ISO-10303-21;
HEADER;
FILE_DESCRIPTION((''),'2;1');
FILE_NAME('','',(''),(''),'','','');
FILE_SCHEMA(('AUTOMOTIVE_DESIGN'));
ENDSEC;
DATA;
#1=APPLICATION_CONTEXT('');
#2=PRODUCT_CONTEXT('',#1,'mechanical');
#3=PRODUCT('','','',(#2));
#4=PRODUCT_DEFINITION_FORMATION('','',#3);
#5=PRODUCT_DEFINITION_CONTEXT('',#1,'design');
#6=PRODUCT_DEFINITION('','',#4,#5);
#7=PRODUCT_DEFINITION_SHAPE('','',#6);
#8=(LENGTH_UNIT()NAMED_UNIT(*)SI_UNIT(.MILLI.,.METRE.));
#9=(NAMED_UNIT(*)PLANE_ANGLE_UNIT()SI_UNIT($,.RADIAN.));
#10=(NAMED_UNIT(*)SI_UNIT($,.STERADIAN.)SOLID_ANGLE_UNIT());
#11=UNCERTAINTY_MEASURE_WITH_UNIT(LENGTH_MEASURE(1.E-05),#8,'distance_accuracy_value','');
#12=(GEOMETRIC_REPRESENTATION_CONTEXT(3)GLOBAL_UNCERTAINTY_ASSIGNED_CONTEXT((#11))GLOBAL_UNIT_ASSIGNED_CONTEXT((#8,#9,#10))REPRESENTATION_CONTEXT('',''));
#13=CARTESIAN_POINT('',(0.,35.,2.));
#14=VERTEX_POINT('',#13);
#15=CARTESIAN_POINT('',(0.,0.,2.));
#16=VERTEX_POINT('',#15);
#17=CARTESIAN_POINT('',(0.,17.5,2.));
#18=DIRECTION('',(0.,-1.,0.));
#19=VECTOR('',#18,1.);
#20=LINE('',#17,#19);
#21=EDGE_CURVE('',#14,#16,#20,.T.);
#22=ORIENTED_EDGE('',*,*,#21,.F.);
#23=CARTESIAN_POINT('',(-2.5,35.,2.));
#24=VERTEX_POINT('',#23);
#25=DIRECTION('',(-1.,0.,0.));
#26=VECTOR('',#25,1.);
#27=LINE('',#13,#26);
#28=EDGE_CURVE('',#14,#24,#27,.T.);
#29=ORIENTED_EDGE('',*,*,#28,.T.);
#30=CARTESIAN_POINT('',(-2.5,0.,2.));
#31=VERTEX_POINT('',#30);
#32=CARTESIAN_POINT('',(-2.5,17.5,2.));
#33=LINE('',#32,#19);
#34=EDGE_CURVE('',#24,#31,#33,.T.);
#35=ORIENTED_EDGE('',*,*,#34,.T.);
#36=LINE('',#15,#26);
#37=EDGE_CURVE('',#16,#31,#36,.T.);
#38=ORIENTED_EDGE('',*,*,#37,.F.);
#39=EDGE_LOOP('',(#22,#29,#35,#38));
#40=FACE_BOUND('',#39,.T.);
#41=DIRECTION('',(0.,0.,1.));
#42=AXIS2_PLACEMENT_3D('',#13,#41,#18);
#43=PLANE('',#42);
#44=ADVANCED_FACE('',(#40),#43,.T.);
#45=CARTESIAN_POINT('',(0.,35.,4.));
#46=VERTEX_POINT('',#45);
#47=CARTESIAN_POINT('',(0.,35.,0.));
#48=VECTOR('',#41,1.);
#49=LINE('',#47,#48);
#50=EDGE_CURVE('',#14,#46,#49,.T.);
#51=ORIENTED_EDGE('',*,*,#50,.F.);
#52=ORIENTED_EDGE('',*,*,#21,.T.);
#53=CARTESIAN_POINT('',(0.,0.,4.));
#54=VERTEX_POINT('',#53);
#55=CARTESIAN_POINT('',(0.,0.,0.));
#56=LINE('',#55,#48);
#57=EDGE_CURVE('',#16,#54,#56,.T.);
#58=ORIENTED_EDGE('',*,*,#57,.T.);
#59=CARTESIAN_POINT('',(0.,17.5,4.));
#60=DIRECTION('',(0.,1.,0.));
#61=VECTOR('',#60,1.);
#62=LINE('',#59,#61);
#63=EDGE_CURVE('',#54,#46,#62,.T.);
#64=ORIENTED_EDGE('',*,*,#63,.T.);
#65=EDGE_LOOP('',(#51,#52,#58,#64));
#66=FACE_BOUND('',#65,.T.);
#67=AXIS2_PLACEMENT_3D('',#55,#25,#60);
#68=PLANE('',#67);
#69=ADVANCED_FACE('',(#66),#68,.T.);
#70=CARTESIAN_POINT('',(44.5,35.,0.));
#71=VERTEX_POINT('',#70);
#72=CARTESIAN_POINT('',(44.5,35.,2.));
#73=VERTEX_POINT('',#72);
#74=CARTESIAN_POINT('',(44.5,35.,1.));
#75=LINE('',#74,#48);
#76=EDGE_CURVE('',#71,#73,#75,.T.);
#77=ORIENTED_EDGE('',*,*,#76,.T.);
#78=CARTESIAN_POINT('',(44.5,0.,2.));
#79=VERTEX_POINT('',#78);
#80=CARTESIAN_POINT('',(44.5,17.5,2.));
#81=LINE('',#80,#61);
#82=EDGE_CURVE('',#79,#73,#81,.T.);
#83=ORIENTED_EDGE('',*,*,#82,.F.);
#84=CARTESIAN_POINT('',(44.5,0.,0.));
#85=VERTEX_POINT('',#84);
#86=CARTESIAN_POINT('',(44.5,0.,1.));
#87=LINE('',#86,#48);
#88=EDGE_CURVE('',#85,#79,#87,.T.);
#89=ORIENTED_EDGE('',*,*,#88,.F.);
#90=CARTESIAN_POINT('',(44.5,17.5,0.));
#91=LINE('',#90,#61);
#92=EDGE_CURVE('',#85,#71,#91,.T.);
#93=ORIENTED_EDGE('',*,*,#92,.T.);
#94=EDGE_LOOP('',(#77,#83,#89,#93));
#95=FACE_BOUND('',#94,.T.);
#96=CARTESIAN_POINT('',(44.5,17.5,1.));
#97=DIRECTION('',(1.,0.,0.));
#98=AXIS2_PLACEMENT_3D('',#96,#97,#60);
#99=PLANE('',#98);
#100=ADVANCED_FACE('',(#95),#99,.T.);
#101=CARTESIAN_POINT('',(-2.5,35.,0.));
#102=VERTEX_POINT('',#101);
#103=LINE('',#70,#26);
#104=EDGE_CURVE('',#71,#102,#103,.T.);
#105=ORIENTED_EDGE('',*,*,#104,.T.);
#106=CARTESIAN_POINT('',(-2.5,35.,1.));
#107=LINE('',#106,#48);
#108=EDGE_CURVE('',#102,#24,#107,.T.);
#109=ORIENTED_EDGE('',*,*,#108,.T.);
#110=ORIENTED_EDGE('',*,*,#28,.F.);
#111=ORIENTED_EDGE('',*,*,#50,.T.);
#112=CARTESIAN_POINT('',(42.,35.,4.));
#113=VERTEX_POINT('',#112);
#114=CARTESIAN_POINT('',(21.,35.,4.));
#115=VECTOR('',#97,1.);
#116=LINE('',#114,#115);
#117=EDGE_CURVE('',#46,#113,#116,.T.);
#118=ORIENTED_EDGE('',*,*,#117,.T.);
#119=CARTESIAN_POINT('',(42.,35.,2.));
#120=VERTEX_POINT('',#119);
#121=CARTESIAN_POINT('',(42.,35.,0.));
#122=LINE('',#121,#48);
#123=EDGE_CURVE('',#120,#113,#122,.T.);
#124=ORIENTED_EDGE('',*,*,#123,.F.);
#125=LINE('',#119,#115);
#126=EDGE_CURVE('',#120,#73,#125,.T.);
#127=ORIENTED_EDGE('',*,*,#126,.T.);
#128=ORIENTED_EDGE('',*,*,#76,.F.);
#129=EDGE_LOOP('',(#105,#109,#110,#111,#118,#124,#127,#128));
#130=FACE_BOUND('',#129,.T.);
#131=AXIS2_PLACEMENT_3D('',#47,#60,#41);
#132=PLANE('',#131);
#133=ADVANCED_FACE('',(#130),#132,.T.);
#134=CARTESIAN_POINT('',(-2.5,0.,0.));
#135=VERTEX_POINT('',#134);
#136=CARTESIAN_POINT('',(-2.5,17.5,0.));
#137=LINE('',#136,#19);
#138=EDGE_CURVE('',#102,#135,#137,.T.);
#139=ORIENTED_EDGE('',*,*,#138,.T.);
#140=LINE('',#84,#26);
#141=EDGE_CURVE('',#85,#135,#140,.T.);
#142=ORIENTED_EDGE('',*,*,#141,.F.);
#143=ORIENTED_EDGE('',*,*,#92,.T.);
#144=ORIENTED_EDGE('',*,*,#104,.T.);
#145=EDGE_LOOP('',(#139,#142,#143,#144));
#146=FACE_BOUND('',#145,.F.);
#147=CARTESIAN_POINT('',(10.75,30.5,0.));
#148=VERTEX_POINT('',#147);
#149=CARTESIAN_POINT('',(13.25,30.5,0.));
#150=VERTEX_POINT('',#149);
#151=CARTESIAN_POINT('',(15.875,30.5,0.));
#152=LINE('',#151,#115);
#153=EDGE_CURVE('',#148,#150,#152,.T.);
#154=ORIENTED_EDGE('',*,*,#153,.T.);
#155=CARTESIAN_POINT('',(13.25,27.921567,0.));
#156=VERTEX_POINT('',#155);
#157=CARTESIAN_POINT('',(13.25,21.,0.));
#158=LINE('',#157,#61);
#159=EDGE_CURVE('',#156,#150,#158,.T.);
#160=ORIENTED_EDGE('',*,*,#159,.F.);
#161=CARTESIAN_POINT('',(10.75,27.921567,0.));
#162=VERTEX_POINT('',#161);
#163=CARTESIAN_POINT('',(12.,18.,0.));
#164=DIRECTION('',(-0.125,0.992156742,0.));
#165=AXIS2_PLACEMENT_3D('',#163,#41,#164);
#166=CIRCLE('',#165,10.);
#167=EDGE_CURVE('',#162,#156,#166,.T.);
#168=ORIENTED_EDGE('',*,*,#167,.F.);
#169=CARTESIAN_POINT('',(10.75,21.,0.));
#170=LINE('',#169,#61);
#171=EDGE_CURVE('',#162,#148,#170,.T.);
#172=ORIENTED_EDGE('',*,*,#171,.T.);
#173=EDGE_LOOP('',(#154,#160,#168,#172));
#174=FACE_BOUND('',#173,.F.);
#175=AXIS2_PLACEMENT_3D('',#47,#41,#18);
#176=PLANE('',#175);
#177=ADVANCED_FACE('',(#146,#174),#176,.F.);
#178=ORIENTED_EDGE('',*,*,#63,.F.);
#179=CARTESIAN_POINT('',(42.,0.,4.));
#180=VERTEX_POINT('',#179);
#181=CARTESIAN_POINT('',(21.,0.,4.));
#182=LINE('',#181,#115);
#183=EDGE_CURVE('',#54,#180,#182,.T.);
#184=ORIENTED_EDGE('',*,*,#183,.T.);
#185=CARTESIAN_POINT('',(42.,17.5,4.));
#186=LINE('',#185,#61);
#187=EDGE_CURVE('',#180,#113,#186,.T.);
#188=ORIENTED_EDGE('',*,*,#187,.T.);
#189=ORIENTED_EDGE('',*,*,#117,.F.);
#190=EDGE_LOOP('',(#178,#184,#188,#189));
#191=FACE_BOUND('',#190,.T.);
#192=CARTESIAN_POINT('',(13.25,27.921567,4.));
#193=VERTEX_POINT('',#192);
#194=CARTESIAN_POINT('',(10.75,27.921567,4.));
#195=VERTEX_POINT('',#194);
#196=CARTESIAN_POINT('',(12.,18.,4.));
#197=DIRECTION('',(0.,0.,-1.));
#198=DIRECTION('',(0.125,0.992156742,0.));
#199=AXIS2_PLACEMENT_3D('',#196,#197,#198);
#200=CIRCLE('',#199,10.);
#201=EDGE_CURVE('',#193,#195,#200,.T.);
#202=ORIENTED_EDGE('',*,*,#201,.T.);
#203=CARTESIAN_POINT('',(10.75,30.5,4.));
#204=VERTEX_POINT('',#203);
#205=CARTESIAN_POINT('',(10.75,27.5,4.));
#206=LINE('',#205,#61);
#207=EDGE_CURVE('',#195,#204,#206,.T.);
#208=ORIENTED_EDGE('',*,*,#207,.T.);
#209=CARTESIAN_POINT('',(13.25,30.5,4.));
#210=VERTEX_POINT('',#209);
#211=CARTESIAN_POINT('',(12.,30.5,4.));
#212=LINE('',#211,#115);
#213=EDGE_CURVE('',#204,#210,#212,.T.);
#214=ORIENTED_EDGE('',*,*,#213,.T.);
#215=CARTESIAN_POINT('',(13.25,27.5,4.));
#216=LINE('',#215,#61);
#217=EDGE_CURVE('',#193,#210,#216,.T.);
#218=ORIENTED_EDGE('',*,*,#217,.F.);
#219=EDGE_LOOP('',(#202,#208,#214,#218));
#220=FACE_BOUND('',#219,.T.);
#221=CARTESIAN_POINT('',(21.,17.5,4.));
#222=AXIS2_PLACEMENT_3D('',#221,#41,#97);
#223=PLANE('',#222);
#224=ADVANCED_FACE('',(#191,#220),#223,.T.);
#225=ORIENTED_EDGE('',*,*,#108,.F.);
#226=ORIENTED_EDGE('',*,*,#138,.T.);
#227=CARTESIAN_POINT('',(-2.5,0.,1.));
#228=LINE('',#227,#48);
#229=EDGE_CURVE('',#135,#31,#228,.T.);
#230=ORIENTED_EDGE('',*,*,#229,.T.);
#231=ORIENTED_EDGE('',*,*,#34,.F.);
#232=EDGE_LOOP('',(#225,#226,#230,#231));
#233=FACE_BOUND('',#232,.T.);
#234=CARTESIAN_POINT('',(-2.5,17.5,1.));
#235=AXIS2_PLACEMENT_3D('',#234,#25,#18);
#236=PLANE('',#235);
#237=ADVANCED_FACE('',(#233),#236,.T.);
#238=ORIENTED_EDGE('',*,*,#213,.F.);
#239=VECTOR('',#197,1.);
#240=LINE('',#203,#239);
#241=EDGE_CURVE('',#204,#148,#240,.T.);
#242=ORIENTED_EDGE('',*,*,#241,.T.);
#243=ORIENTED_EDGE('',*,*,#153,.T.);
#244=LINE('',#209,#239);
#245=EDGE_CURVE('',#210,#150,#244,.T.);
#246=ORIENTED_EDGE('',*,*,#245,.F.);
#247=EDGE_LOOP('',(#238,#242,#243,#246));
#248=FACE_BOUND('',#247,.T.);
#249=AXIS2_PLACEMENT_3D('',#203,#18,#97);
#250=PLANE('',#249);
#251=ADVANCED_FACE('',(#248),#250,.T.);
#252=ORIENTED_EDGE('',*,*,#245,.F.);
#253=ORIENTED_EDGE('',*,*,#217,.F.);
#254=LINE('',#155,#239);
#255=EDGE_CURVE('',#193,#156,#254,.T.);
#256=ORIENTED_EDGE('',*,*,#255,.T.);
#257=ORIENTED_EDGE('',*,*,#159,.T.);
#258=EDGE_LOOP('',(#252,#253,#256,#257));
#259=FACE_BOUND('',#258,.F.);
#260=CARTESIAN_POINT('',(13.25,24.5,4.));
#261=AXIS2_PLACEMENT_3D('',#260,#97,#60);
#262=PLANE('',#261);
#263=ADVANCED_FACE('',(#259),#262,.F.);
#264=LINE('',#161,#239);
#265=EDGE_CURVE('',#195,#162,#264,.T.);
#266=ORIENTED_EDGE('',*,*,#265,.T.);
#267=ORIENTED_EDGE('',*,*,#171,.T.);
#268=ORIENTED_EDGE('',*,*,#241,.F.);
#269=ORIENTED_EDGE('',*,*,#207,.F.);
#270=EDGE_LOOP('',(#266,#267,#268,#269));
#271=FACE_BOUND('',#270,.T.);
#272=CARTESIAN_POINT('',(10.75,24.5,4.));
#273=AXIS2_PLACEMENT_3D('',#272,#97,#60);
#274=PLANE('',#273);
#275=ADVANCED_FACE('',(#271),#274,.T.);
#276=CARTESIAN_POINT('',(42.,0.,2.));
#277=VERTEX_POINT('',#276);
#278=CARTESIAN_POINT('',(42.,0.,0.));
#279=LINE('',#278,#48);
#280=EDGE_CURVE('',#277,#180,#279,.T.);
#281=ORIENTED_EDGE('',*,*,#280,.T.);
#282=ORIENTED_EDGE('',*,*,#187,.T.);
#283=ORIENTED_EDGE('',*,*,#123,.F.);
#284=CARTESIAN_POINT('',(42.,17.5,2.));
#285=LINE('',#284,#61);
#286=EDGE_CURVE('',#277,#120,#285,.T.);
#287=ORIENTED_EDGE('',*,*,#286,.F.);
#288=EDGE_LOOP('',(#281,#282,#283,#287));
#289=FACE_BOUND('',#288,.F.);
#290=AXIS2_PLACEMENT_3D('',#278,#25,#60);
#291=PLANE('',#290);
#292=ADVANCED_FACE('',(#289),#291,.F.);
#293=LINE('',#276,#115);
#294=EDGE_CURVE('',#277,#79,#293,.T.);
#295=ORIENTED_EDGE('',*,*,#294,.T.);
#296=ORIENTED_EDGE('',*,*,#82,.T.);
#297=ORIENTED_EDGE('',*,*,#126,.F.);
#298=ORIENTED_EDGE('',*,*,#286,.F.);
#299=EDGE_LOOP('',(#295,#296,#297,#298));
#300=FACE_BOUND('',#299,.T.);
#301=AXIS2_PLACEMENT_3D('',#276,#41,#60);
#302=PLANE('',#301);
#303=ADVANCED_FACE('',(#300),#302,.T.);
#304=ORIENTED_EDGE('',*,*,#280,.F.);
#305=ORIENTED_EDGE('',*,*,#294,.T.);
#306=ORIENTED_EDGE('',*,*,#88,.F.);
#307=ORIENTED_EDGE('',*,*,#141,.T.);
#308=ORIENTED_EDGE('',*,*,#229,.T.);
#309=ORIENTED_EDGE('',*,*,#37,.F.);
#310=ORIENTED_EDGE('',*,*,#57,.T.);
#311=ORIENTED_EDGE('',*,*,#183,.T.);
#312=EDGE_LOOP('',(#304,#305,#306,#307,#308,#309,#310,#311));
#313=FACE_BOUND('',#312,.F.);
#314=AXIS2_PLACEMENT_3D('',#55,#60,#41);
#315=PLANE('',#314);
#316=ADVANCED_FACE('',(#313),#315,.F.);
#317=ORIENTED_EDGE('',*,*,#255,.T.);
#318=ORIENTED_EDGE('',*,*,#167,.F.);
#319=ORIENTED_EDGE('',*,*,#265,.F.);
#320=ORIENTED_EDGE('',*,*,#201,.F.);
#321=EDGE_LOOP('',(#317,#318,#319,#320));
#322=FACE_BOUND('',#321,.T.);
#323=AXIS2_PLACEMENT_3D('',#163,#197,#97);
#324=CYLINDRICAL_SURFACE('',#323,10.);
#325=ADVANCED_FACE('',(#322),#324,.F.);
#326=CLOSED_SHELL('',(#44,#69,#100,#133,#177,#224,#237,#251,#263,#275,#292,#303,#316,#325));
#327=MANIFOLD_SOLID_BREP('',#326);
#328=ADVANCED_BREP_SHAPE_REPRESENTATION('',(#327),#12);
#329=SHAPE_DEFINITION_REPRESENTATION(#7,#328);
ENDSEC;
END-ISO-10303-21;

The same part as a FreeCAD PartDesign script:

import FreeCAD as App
import Part
import Sketcher

V = App.Vector
Q = App.Units.Quantity

doc = App.newDocument("Part")
params = doc.addObject("Spreadsheet::Sheet", "Params")
for row, (alias, value) in enumerate([
    ("sketch1_diameter", "20 mm"),
    ("sketch1_width", "42 mm"),
    ("sketch1_height", "35 mm"),
    ("pad1_length", "4 mm"),
    ("sketch2_height", "6 mm"),
    ("sketch2_width", "2.5 mm"),
    ("pocket1_length", "5 mm"),
    ("sketch3_width", "35 mm"),
    ("sketch3_height", "2 mm"),
    ("pad2_length", "2.5 mm"),
    ("sketch4_width", "35 mm"),
    ("sketch4_height", "2 mm"),
    ("pad3_length", "2.5 mm"),
], start=1):
    params.set(f"A{row}", alias)
    params.set(f"B{row}", "=" + value)
    params.setAlias(f"B{row}", alias)

body = doc.addObject("PartDesign::Body", "Body")

# Sketch on XY plane
sketch1 = body.newObject("Sketcher::SketchObject", "Sketch")
sketch1.AttachmentSupport = (doc.getObject("XY_Plane"), [""])
sketch1.MapMode = "FlatFace"
sketch1.addGeometry([
    Part.LineSegment(V(0, 35, 0), V(0, 0, 0)),  # 0
    Part.LineSegment(V(0, 0, 0), V(42, 0, 0)),  # 1
    Part.LineSegment(V(42, 0, 0), V(42, 35, 0)),  # 2
    Part.LineSegment(V(42, 35, 0), V(0, 35, 0)),  # 3
    Part.Circle(V(12, 18, 0), V(0, 0, 1), 10),  # 4
], False)
sketch1.addConstraint([
    Sketcher.Constraint("Coincident", 0, 2, 1, 1),
    Sketcher.Constraint("Coincident", 1, 2, 2, 1),
    Sketcher.Constraint("Coincident", 2, 2, 3, 1),
    Sketcher.Constraint("Coincident", 3, 2, 0, 1),
    Sketcher.Constraint("Vertical", 0),
    Sketcher.Constraint("Horizontal", 1),
    Sketcher.Constraint("Vertical", 2),
    Sketcher.Constraint("Horizontal", 3),
    Sketcher.Constraint("Coincident", 0, 2, -1, 1),
    Sketcher.Constraint("Diameter", 4, Q("20 mm")),
    Sketcher.Constraint("DistanceX", 1, 1, 1, 2, Q("42 mm")),
    Sketcher.Constraint("DistanceY", 0, 2, 0, 1, Q("35 mm")),
    Sketcher.Constraint("DistanceX", -1, 1, 4, 3, Q("12 mm")),
    Sketcher.Constraint("DistanceY", -1, 1, 4, 3, Q("18 mm")),
])
sketch1.setExpression("Constraints[9]", "Params.sketch1_diameter")
sketch1.setExpression("Constraints[10]", "Params.sketch1_width")
sketch1.setExpression("Constraints[11]", "Params.sketch1_height")
pad1 = body.newObject("PartDesign::Pad", "Pad")
pad1.Profile = sketch1
pad1.setExpression("Length", "Params.pad1_length")

# Sketch on XY plane
sketch2 = body.newObject("Sketcher::SketchObject", "Sketch001")
sketch2.AttachmentSupport = (doc.getObject("XY_Plane"), [""])
sketch2.MapMode = "FlatFace"
sketch2.AttachmentOffset = App.Placement(V(0, 0, 4), App.Rotation())
sketch2.addGeometry([
    Part.LineSegment(V(10.8, 30.5, 0), V(10.8, 24.5, 0)),
    Part.LineSegment(V(10.8, 24.5, 0), V(13.2, 24.5, 0)),
    Part.LineSegment(V(13.2, 24.5, 0), V(13.2, 30.5, 0)),
    Part.LineSegment(V(13.2, 30.5, 0), V(10.8, 30.5, 0)),
], False)
sketch2.addConstraint([
    Sketcher.Constraint("Coincident", 0, 2, 1, 1),
    Sketcher.Constraint("Coincident", 1, 2, 2, 1),
    Sketcher.Constraint("Coincident", 2, 2, 3, 1),
    Sketcher.Constraint("Coincident", 3, 2, 0, 1),
    Sketcher.Constraint("Vertical", 0),
    Sketcher.Constraint("Horizontal", 1),
    Sketcher.Constraint("Vertical", 2),
    Sketcher.Constraint("Horizontal", 3),
    Sketcher.Constraint("DistanceY", 0, 2, 0, 1, Q("6 mm")),
    Sketcher.Constraint("DistanceX", 1, 1, 1, 2, Q("2.5 mm")),
    Sketcher.Constraint("DistanceY", -1, 1, 0, 2, Q("24.5 mm")),
    Sketcher.Constraint("DistanceX", -1, 1, 0, 2, Q("10.75 mm")),
])
sketch2.setExpression("Constraints[8]", "Params.sketch2_height")
sketch2.setExpression("Constraints[9]", "Params.sketch2_width")
pocket1 = body.newObject("PartDesign::Pocket", "Pocket")
pocket1.Profile = sketch2
pocket1.setExpression("Length", "Params.pocket1_length")

# Sketch on YZ plane
sketch3 = body.newObject("Sketcher::SketchObject", "Sketch002")
sketch3.AttachmentSupport = (doc.getObject("YZ_Plane"), [""])
sketch3.MapMode = "FlatFace"
sketch3.AttachmentOffset = App.Placement(V(0, 0, 42), App.Rotation())
sketch3.addGeometry([
    Part.LineSegment(V(0, 2, 0), V(0, 0, 0)),
    Part.LineSegment(V(0, 0, 0), V(35, 0, 0)),
    Part.LineSegment(V(35, 0, 0), V(35, 2, 0)),
    Part.LineSegment(V(35, 2, 0), V(0, 2, 0)),
], False)
sketch3.addConstraint([
    Sketcher.Constraint("Coincident", 0, 2, 1, 1),
    Sketcher.Constraint("Coincident", 1, 2, 2, 1),
    Sketcher.Constraint("Coincident", 2, 2, 3, 1),
    Sketcher.Constraint("Coincident", 3, 2, 0, 1),
    Sketcher.Constraint("Vertical", 0),
    Sketcher.Constraint("Horizontal", 1),
    Sketcher.Constraint("Vertical", 2),
    Sketcher.Constraint("Horizontal", 3),
    Sketcher.Constraint("Coincident", 0, 2, -1, 1),
    Sketcher.Constraint("DistanceX", 1, 1, 1, 2, Q("35 mm")),
    Sketcher.Constraint("DistanceY", 0, 2, 0, 1, Q("2 mm")),
])
sketch3.setExpression("Constraints[9]", "Params.sketch3_width")
sketch3.setExpression("Constraints[10]", "Params.sketch3_height")
pad2 = body.newObject("PartDesign::Pad", "Pad001")
pad2.Profile = sketch3
pad2.setExpression("Length", "Params.pad2_length")

# Sketch on YZ plane
sketch4 = body.newObject("Sketcher::SketchObject", "Sketch003")
sketch4.AttachmentSupport = (doc.getObject("YZ_Plane"), [""])
sketch4.MapMode = "FlatFace"
sketch4.addGeometry([
    Part.LineSegment(V(35, 2, 0), V(35, 0, 0)),
    Part.LineSegment(V(35, 0, 0), V(0, 0, 0)),
    Part.LineSegment(V(0, 0, 0), V(0, 2, 0)),
    Part.LineSegment(V(0, 2, 0), V(35, 2, 0)),
], False)
sketch4.addConstraint([
    Sketcher.Constraint("Coincident", 0, 2, 1, 1),
    Sketcher.Constraint("Coincident", 1, 2, 2, 1),
    Sketcher.Constraint("Coincident", 2, 2, 3, 1),
    Sketcher.Constraint("Coincident", 3, 2, 0, 1),
    Sketcher.Constraint("Vertical", 0),
    Sketcher.Constraint("Horizontal", 1),
    Sketcher.Constraint("Vertical", 2),
    Sketcher.Constraint("Horizontal", 3),
    Sketcher.Constraint("Coincident", 1, 2, -1, 1),
    Sketcher.Constraint("DistanceX", 1, 2, 1, 1, Q("35 mm")),
    Sketcher.Constraint("DistanceY", 0, 2, 0, 1, Q("2 mm")),
])
sketch4.setExpression("Constraints[9]", "Params.sketch4_width")
sketch4.setExpression("Constraints[10]", "Params.sketch4_height")
pad3 = body.newObject("PartDesign::Pad", "Pad002")
pad3.Profile = sketch4
pad3.setExpression("Length", "Params.pad3_length")
pad3.Reversed = True

doc.recompute()
